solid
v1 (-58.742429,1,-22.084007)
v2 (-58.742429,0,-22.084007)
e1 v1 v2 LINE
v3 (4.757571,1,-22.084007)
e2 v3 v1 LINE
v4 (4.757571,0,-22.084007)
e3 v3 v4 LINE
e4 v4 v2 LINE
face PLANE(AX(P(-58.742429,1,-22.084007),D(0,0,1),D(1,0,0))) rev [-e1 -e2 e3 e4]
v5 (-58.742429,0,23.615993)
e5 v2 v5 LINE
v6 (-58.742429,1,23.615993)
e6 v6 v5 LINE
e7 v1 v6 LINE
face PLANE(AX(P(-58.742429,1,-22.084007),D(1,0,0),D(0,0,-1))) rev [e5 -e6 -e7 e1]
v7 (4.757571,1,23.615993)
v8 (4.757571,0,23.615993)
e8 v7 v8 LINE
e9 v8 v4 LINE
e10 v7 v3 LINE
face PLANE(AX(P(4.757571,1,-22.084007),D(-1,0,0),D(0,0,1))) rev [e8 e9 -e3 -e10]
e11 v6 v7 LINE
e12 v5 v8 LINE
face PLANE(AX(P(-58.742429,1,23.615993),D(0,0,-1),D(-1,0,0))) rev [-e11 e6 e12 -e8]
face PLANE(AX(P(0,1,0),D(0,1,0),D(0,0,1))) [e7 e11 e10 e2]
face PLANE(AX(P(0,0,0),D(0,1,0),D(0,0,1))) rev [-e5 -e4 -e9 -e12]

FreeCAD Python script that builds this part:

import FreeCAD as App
import Part
import Sketcher

doc = App.newDocument("Part")
body = doc.addObject("PartDesign::Body", "Body")

sketch1 = body.newObject("Sketcher::SketchObject", "Sketch")
sketch1.AttachmentSupport = (doc.getObject("XZ_Plane"), [""])
sketch1.MapMode = "FlatFace"
sketch1.addGeometry([
    Part.LineSegment(App.Vector(-59, -22, 0), App.Vector(-59, 24, 0)),
    Part.LineSegment(App.Vector(-59, 24, 0), App.Vector(5, 24, 0)),
    Part.LineSegment(App.Vector(5, 24, 0), App.Vector(5, -22, 0)),
    Part.LineSegment(App.Vector(5, -22, 0), App.Vector(-59, -22, 0)),
], False)
sketch1.addConstraint([
    Sketcher.Constraint("Coincident", 0, 2, 1, 1),
    Sketcher.Constraint("Coincident", 1, 2, 2, 1),
    Sketcher.Constraint("Coincident", 2, 2, 3, 1),
    Sketcher.Constraint("Coincident", 3, 2, 0, 1),
    Sketcher.Constraint("Vertical", 0),
    Sketcher.Constraint("Horizontal", 1),
    Sketcher.Constraint("Vertical", 2),
    Sketcher.Constraint("Horizontal", 3),
    Sketcher.Constraint("DistanceX", 1, 1, 1, 2, 63.5),
    Sketcher.Constraint("DistanceY", 0, 1, 0, 2, 45.7),
    Sketcher.Constraint("DistanceX", 0, 2, -1, 1, 58.742429),
    Sketcher.Constraint("DistanceY", -1, 1, 0, 2, 23.615993),
])
pad1 = body.newObject("PartDesign::Pad", "Pad")
pad1.Profile = sketch1
pad1.Length = 1
pad1.Reversed = True

doc.recompute()
